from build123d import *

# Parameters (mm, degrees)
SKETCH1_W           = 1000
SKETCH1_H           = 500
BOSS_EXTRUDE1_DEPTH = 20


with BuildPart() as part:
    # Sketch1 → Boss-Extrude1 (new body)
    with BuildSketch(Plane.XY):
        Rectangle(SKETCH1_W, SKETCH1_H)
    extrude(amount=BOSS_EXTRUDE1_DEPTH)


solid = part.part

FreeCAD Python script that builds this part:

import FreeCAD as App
import Part
import Sketcher
Q = App.Units.Quantity

doc = App.newDocument("Part")
params = doc.addObject("Spreadsheet::Sheet", "Params")
for row, (alias, value) in enumerate([
    ("sketch1_width", "1000 mm"),
    ("sketch1_height", "500 mm"),
    ("pad1_length", "20 mm"),
], start=1):
    params.set(f"A{row}", alias)
    params.set(f"B{row}", "=" + value)
    params.setAlias(f"B{row}", alias)

body = doc.addObject("PartDesign::Body", "Body")

# Sketch on XY plane
sketch1 = body.newObject("Sketcher::SketchObject", "Sketch")
sketch1.AttachmentSupport = (doc.getObject("XY_Plane"), [""])
sketch1.MapMode = "FlatFace"
sketch1.addGeometry([
    Part.LineSegment(App.Vector(-500, 250, 0), App.Vector(-500, -250, 0)),
    Part.LineSegment(App.Vector(-500, -250, 0), App.Vector(500, -250, 0)),
    Part.LineSegment(App.Vector(500, -250, 0), App.Vector(500, 250, 0)),
    Part.LineSegment(App.Vector(500, 250, 0), App.Vector(-500, 250, 0)),
], False)
sketch1.addConstraint([
    Sketcher.Constraint("Coincident", 0, 2, 1, 1),
    Sketcher.Constraint("Coincident", 1, 2, 2, 1),
    Sketcher.Constraint("Coincident", 2, 2, 3, 1),
    Sketcher.Constraint("Coincident", 3, 2, 0, 1),
    Sketcher.Constraint("Vertical", 0),
    Sketcher.Constraint("Horizontal", 1),
    Sketcher.Constraint("Vertical", 2),
    Sketcher.Constraint("Horizontal", 3),
    Sketcher.Constraint("Symmetric", 0, 2, 2, 2, -1, 1),
    Sketcher.Constraint("DistanceX", 1, 1, 1, 2, Q("1000 mm")),
    Sketcher.Constraint("DistanceY", 0, 2, 0, 1, Q("500 mm")),
])
sketch1.setExpression("Constraints[9]", "Params.sketch1_width")
sketch1.setExpression("Constraints[10]", "Params.sketch1_height")
pad1 = body.newObject("PartDesign::Pad", "Pad")
pad1.Profile = sketch1
pad1.setExpression("Length", "Params.pad1_length")

doc.recompute()
